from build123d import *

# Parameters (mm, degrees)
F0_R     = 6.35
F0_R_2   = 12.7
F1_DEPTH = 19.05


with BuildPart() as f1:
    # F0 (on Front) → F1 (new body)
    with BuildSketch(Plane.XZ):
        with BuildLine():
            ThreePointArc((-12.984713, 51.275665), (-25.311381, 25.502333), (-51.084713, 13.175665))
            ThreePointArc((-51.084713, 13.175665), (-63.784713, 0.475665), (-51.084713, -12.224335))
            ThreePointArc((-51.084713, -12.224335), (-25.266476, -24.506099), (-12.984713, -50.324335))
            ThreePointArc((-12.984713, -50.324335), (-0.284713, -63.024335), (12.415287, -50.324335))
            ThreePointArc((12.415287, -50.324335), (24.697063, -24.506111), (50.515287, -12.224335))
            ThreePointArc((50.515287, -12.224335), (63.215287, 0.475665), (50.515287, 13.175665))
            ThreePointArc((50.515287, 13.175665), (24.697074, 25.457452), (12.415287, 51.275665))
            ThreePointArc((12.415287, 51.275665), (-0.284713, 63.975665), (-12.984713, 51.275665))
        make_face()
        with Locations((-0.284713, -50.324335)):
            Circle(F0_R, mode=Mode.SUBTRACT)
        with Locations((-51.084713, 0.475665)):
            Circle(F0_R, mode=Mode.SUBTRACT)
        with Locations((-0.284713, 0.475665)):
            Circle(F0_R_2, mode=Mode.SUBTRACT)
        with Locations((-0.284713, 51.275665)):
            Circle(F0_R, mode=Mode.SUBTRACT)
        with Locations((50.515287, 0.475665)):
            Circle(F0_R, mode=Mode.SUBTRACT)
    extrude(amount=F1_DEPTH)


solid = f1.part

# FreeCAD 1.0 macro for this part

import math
import FreeCAD as App
import Part
import Sketcher
Q = App.Units.Quantity

doc = App.newDocument("Part")
body = doc.addObject("PartDesign::Body", "Body")

# Sketch on XZ plane
sketch1 = body.newObject("Sketcher::SketchObject", "Sketch")
sketch1.AttachmentSupport = (doc.getObject("XZ_Plane"), [""])
sketch1.MapMode = "FlatFace"
sketch1.addGeometry([
    Part.ArcOfCircle(Part.Circle(App.Vector(-55.661339, 55.852291, 0), App.Vector(0, 0, 1), 42.921323), math.radians(-83.879014), math.radians(-6.120986)),  # 0
    Part.ArcOfCircle(Part.Circle(App.Vector(-51.084713, 0.475665, 0), App.Vector(0, 0, 1), 12.7), math.radians(90), math.radians(270)),  # 1
    Part.ArcOfCircle(Part.Circle(App.Vector(-55.459831, -54.699453, 0), App.Vector(0, 0, 1), 42.699851), math.radians(5.880969), math.radians(84.119031)),  # 2
    Part.ArcOfCircle(Part.Circle(App.Vector(-0.284713, -50.324335, 0), App.Vector(0, 0, 1), 12.7), math.radians(180), math.radians(360)),  # 3
    Part.ArcOfCircle(Part.Circle(App.Vector(54.890461, -54.699509, 0), App.Vector(0, 0, 1), 42.699912), math.radians(95.881036), math.radians(174.118964)),  # 4
    Part.ArcOfCircle(Part.Circle(App.Vector(50.515287, 0.475665, 0), App.Vector(0, 0, 1), 12.7), math.radians(-90), math.radians(90)),  # 5
    Part.ArcOfCircle(Part.Circle(App.Vector(54.89051, 55.650888, 0), App.Vector(0, 0, 1), 42.699966), math.radians(-174.118906), math.radians(-95.881094)),  # 6
    Part.ArcOfCircle(Part.Circle(App.Vector(-0.284713, 51.275665, 0), App.Vector(0, 0, 1), 12.7), math.radians(0), math.radians(180)),  # 7
    Part.Circle(App.Vector(-0.284713, -50.324335, 0), App.Vector(0, 0, 1), 6.35),  # 8
    Part.Circle(App.Vector(-51.084713, 0.475665, 0), App.Vector(0, 0, 1), 6.35),  # 9
    Part.Circle(App.Vector(-0.284713, 0.475665, 0), App.Vector(0, 0, 1), 12.7),  # 10
    Part.Circle(App.Vector(-0.284713, 51.275665, 0), App.Vector(0, 0, 1), 6.35),  # 11
    Part.Circle(App.Vector(50.515287, 0.475665, 0), App.Vector(0, 0, 1), 6.35),  # 12
], False)
sketch1.addConstraint([
    Sketcher.Constraint("Coincident", 0, 1, 1, 1),
    Sketcher.Constraint("Coincident", 1, 2, 2, 2),
    Sketcher.Constraint("Coincident", 2, 1, 3, 1),
    Sketcher.Constraint("Coincident", 3, 2, 4, 2),
    Sketcher.Constraint("Coincident", 4, 1, 5, 1),
    Sketcher.Constraint("Coincident", 5, 2, 6, 2),
    Sketcher.Constraint("Coincident", 6, 1, 7, 1),
    Sketcher.Constraint("Coincident", 7, 2, 0, 2),
    Sketcher.Constraint("Coincident", 8, 3, 3, 3),
    Sketcher.Constraint("Coincident", 9, 3, 1, 3),
    Sketcher.Constraint("Coincident", 11, 3, 7, 3),
    Sketcher.Constraint("Coincident", 12, 3, 5, 3),
    Sketcher.Constraint("Equal", 1, 3),
    Sketcher.Constraint("Equal", 3, 5),
    Sketcher.Constraint("Equal", 5, 7),
    Sketcher.Constraint("Equal", 8, 9),
    Sketcher.Constraint("Equal", 7, 10),
    Sketcher.Constraint("Equal", 9, 11),
    Sketcher.Constraint("Equal", 11, 12),
    Sketcher.Constraint("Horizontal", 1, 3, 5, 3),
    Sketcher.Constraint("Horizontal", 9, 3, 10, 3),
    Sketcher.Constraint("Horizontal", 8, 3, 2, 1),
    Sketcher.Constraint("Horizontal", 2, 1, 3, 2),
    Sketcher.Constraint("Horizontal", 11, 3, 6, 1),
    Sketcher.Constraint("Horizontal", 6, 1, 7, 2),
    Sketcher.Constraint("Vertical", 3, 3, 7, 3),
    Sketcher.Constraint("Vertical", 8, 3, 10, 3),
    Sketcher.Constraint("Vertical", 9, 3, 0, 1),
    Sketcher.Constraint("Vertical", 0, 1, 1, 2),
    Sketcher.Constraint("Vertical", 12, 3, 4, 1),
    Sketcher.Constraint("Vertical", 4, 1, 5, 2),
    Sketcher.Constraint("Diameter", 10, Q("1 in")),
    Sketcher.Constraint("Diameter", 8, Q("0.5 in")),
    Sketcher.Constraint("DistanceX", 1, 3, 3, 3, Q("2 in")),
    Sketcher.Constraint("DistanceY", 3, 3, 1, 3, Q("2 in")),
    Sketcher.Constraint("DistanceX", 3, 3, 5, 3, Q("2 in")),
    Sketcher.Constraint("DistanceY", 1, 3, 7, 3, Q("2 in")),
    Sketcher.Constraint("Radius", 2, 42.699851),
    Sketcher.Constraint("Radius", 0, 42.921323),
    Sketcher.Constraint("Radius", 4, 42.699912),
    Sketcher.Constraint("Radius", 6, 42.699966),
    Sketcher.Constraint("DistanceX", 0, 3, -1, 1, 55.661339),
    Sketcher.Constraint("DistanceY", -1, 1, 0, 3, 55.852291),
])
pad1 = body.newObject("PartDesign::Pad", "Pad")
pad1.Profile = sketch1
pad1.Length = Q("0.75 in")

doc.recompute()
